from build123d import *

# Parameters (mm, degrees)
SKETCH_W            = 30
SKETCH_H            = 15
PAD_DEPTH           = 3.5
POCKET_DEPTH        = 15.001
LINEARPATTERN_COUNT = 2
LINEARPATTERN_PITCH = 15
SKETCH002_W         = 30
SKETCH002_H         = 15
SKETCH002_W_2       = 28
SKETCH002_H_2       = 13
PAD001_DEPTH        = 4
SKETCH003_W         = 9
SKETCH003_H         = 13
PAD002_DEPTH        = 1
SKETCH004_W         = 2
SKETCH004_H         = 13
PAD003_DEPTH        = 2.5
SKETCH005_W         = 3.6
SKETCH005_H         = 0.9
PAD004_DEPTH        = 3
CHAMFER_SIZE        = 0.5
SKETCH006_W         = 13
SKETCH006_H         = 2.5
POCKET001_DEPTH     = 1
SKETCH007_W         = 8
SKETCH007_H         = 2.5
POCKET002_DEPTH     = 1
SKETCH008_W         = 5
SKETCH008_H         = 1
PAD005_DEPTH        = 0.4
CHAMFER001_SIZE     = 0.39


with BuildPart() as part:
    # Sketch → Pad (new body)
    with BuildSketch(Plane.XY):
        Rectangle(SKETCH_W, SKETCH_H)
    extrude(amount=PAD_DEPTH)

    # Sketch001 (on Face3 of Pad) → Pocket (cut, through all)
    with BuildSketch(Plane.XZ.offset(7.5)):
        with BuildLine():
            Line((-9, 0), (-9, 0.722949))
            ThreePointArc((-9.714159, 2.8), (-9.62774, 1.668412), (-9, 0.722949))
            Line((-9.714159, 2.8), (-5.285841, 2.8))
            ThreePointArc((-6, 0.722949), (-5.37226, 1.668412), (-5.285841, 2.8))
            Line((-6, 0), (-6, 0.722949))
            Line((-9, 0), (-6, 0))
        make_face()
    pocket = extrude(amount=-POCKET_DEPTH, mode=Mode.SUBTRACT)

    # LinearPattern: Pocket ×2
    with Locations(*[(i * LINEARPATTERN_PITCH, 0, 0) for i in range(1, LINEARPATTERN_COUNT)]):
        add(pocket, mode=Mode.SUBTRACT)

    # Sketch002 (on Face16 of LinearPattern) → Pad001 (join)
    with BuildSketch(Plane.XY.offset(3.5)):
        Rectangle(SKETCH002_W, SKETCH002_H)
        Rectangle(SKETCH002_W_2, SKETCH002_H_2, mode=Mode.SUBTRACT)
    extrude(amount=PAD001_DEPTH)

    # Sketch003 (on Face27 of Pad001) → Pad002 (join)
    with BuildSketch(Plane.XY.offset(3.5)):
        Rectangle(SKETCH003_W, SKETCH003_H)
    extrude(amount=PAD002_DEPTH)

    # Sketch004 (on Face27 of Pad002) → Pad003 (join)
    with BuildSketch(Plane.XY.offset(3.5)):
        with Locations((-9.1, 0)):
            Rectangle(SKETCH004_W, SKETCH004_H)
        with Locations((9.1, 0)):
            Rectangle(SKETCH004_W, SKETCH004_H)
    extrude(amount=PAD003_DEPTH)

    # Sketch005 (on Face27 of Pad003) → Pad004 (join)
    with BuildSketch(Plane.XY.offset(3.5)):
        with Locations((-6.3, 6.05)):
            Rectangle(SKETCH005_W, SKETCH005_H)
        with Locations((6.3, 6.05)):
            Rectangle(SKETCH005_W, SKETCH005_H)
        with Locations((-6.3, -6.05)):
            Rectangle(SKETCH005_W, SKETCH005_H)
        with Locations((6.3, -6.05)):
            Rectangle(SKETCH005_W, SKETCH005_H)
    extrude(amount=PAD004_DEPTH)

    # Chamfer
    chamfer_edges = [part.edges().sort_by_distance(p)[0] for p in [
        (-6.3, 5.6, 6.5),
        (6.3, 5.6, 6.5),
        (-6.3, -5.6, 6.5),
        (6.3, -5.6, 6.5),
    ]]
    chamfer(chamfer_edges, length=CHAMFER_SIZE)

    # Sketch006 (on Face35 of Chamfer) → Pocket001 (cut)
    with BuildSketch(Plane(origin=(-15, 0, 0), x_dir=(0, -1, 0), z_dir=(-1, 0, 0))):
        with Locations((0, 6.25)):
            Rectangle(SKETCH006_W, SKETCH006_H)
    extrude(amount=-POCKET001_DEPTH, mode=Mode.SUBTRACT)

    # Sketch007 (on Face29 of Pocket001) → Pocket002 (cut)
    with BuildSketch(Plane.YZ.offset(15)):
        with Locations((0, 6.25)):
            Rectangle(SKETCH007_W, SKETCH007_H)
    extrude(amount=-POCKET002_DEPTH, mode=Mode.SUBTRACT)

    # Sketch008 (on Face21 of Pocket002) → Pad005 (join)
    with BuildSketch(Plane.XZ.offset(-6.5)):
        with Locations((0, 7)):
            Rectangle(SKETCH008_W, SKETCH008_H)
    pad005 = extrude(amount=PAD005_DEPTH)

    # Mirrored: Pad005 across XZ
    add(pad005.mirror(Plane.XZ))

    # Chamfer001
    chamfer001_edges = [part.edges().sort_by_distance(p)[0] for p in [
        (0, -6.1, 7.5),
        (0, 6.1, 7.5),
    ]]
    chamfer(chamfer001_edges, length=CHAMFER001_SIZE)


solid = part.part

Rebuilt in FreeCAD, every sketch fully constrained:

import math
import FreeCAD as App
import Part
import Sketcher
from FreeCAD import Vector


def edges_at(feature, points):
    """Names of the edges that pass closest to the given points."""
    edges = feature.Shape.Edges
    near = lambda p: min(range(len(edges)), key=lambda i: edges[i].distToShape(Part.Vertex(*p))[0])
    return sorted({f"Edge{near(p) + 1}" for p in points})

doc = App.newDocument("Part")
body = doc.addObject("PartDesign::Body", "Body")

# Sketch on XY plane
sketch1 = doc.addObject("Sketcher::SketchObject", "Sketch")
body.addObject(sketch1)
sketch1.AttachmentSupport = (doc.XY_Plane, [""])
sketch1.MapMode = "FlatFace"
sketch1.addGeometry(Part.LineSegment(Vector(-15, 8, 0), Vector(-15, -8, 0)), False)
sketch1.addGeometry(Part.LineSegment(Vector(-15, -8, 0), Vector(15, -8, 0)), False)
sketch1.addGeometry(Part.LineSegment(Vector(15, -8, 0), Vector(15, 8, 0)), False)
sketch1.addGeometry(Part.LineSegment(Vector(15, 8, 0), Vector(-15, 8, 0)), False)
sketch1.addConstraint(Sketcher.Constraint("Coincident", 0, 2, 1, 1))
sketch1.addConstraint(Sketcher.Constraint("Coincident", 1, 2, 2, 1))
sketch1.addConstraint(Sketcher.Constraint("Coincident", 2, 2, 3, 1))
sketch1.addConstraint(Sketcher.Constraint("Coincident", 3, 2, 0, 1))
sketch1.addConstraint(Sketcher.Constraint("Vertical", 0))
sketch1.addConstraint(Sketcher.Constraint("Horizontal", 1))
sketch1.addConstraint(Sketcher.Constraint("Vertical", 2))
sketch1.addConstraint(Sketcher.Constraint("Horizontal", 3))
sketch1.addConstraint(Sketcher.Constraint("Symmetric", 0, 2, 2, 2, -1, 1))
sketch1.addConstraint(Sketcher.Constraint("DistanceX", 1, 1, 1, 2, 30.0))
sketch1.addConstraint(Sketcher.Constraint("DistanceY", 0, 2, 0, 1, 15.0))
pad1 = doc.addObject("PartDesign::Pad", "Pad")
body.addObject(pad1)
pad1.Profile = sketch1
pad1.Length = 3.5

# Sketch on XZ plane
sketch2 = doc.addObject("Sketcher::SketchObject", "Sketch001")
body.addObject(sketch2)
sketch2.AttachmentSupport = (doc.XZ_Plane, [""])
sketch2.MapMode = "FlatFace"
sketch2.AttachmentOffset = App.Placement(Vector(0, 0, 7.5), App.Rotation())
sketch2.addGeometry(Part.LineSegment(Vector(-9, 0.7, 0), Vector(-9, 0, 0)), False)
sketch2.addGeometry(Part.LineSegment(Vector(-9, 0, 0), Vector(-6, 0, 0)), False)
sketch2.addGeometry(Part.LineSegment(Vector(-6, 0, 0), Vector(-6, 0.7, 0)), False)
sketch2.addGeometry(Part.ArcOfCircle(Part.Circle(Vector(-7.5, 2.4, 0), Vector(0, 0, 1), 2.3), math.radians(-48), math.radians(10)), False)
sketch2.addGeometry(Part.LineSegment(Vector(-5.3, 2.8, 0), Vector(-9.7, 2.8, 0)), False)
sketch2.addGeometry(Part.ArcOfCircle(Part.Circle(Vector(-7.5, 2.4, 0), Vector(0, 0, 1), 2.3), math.radians(170), math.radians(228)), False)
sketch2.addConstraint(Sketcher.Constraint("Coincident", 0, 2, 1, 1))
sketch2.addConstraint(Sketcher.Constraint("Coincident", 1, 2, 2, 1))
sketch2.addConstraint(Sketcher.Constraint("Coincident", 2, 2, 3, 1))
sketch2.addConstraint(Sketcher.Constraint("Coincident", 3, 2, 4, 1))
sketch2.addConstraint(Sketcher.Constraint("Coincident", 4, 2, 5, 1))
sketch2.addConstraint(Sketcher.Constraint("Coincident", 5, 2, 0, 1))
sketch2.addConstraint(Sketcher.Constraint("Vertical", 0))
sketch2.addConstraint(Sketcher.Constraint("Horizontal", 1))
sketch2.addConstraint(Sketcher.Constraint("Vertical", 2))
sketch2.addConstraint(Sketcher.Constraint("Horizontal", 4))
sketch2.addConstraint(Sketcher.Constraint("Coincident", 5, 3, 3, 3))
sketch2.addConstraint(Sketcher.Constraint("Equal", 3, 5))
sketch2.addConstraint(Sketcher.Constraint("PointOnObject", 0, 2, -1))
sketch2.addConstraint(Sketcher.Constraint("Horizontal", 2, 2, 5, 2))
sketch2.addConstraint(Sketcher.Constraint("DistanceX", 1, 1, 1, 2, 3.0))
sketch2.addConstraint(Sketcher.Constraint("DistanceX", 0, 2, -1, 1, 9.0))
sketch2.addConstraint(Sketcher.Constraint("DistanceY", -1, 1, 3, 3, 2.400001))
sketch2.addConstraint(Sketcher.Constraint("DistanceY", -1, 1, 3, 2, 2.8))
sketch2.addConstraint(Sketcher.Constraint("Radius", 3, 2.250002))
pocket1 = doc.addObject("PartDesign::Pocket", "Pocket")
body.addObject(pocket1)
pocket1.Profile = sketch2
pocket1.Type = "ThroughAll"
doc.recompute()

linearpattern = doc.addObject("PartDesign::LinearPattern", "LinearPattern")
body.addObject(linearpattern)
linearpattern.Originals = [pocket1]
linearpattern.Direction = (doc.X_Axis, [""])
linearpattern.Mode = "offset"
linearpattern.Offset = 15
linearpattern.Occurrences = 2
body.Tip = linearpattern

# Sketch on XY plane
sketch3 = doc.addObject("Sketcher::SketchObject", "Sketch002")
body.addObject(sketch3)
sketch3.AttachmentSupport = (doc.XY_Plane, [""])
sketch3.MapMode = "FlatFace"
sketch3.AttachmentOffset = App.Placement(Vector(0, 0, 3.5), App.Rotation())
sketch3.addGeometry(Part.LineSegment(Vector(-15, 8, 0), Vector(-15, -8, 0)), False)
sketch3.addGeometry(Part.LineSegment(Vector(-15, -8, 0), Vector(15, -8, 0)), False)
sketch3.addGeometry(Part.LineSegment(Vector(15, -8, 0), Vector(15, 8, 0)), False)
sketch3.addGeometry(Part.LineSegment(Vector(15, 8, 0), Vector(-15, 8, 0)), False)
sketch3.addGeometry(Part.LineSegment(Vector(14, -6, 0), Vector(-14, -6, 0)), False)
sketch3.addGeometry(Part.LineSegment(Vector(-14, -6, 0), Vector(-14, 6, 0)), False)
sketch3.addGeometry(Part.LineSegment(Vector(-14, 6, 0), Vector(14, 6, 0)), False)
sketch3.addGeometry(Part.LineSegment(Vector(14, 6, 0), Vector(14, -6, 0)), False)
sketch3.addConstraint(Sketcher.Constraint("Coincident", 0, 2, 1, 1))
sketch3.addConstraint(Sketcher.Constraint("Coincident", 1, 2, 2, 1))
sketch3.addConstraint(Sketcher.Constraint("Coincident", 2, 2, 3, 1))
sketch3.addConstraint(Sketcher.Constraint("Coincident", 3, 2, 0, 1))
sketch3.addConstraint(Sketcher.Constraint("Coincident", 4, 2, 5, 1))
sketch3.addConstraint(Sketcher.Constraint("Coincident", 5, 2, 6, 1))
sketch3.addConstraint(Sketcher.Constraint("Coincident", 6, 2, 7, 1))
sketch3.addConstraint(Sketcher.Constraint("Coincident", 7, 2, 4, 1))
sketch3.addConstraint(Sketcher.Constraint("Vertical", 0))
sketch3.addConstraint(Sketcher.Constraint("Horizontal", 1))
sketch3.addConstraint(Sketcher.Constraint("Vertical", 2))
sketch3.addConstraint(Sketcher.Constraint("Horizontal", 3))
sketch3.addConstraint(Sketcher.Constraint("Horizontal", 4))
sketch3.addConstraint(Sketcher.Constraint("Vertical", 5))
sketch3.addConstraint(Sketcher.Constraint("Horizontal", 6))
sketch3.addConstraint(Sketcher.Constraint("Vertical", 7))
sketch3.addConstraint(Sketcher.Constraint("Symmetric", 0, 2, 2, 2, -1, 1))
sketch3.addConstraint(Sketcher.Constraint("Symmetric", 4, 2, 6, 2, -1, 1))
sketch3.addConstraint(Sketcher.Constraint("DistanceX", 1, 1, 1, 2, 30.0))
sketch3.addConstraint(Sketcher.Constraint("DistanceX", 4, 2, 4, 1, 28.0))
sketch3.addConstraint(Sketcher.Constraint("DistanceY", 0, 2, 0, 1, 15.0))
sketch3.addConstraint(Sketcher.Constraint("DistanceY", 5, 1, 5, 2, 13.0))
pad2 = doc.addObject("PartDesign::Pad", "Pad001")
body.addObject(pad2)
pad2.Profile = sketch3
pad2.Length = 4

# Sketch on XY plane
sketch4 = doc.addObject("Sketcher::SketchObject", "Sketch003")
body.addObject(sketch4)
sketch4.AttachmentSupport = (doc.XY_Plane, [""])
sketch4.MapMode = "FlatFace"
sketch4.AttachmentOffset = App.Placement(Vector(0, 0, 3.5), App.Rotation())
sketch4.addGeometry(Part.LineSegment(Vector(-4, 6, 0), Vector(-4, -6, 0)), False)
sketch4.addGeometry(Part.LineSegment(Vector(-4, -6, 0), Vector(4, -6, 0)), False)
sketch4.addGeometry(Part.LineSegment(Vector(4, -6, 0), Vector(4, 6, 0)), False)
sketch4.addGeometry(Part.LineSegment(Vector(4, 6, 0), Vector(-4, 6, 0)), False)
sketch4.addConstraint(Sketcher.Constraint("Coincident", 0, 2, 1, 1))
sketch4.addConstraint(Sketcher.Constraint("Coincident", 1, 2, 2, 1))
sketch4.addConstraint(Sketcher.Constraint("Coincident", 2, 2, 3, 1))
sketch4.addConstraint(Sketcher.Constraint("Coincident", 3, 2, 0, 1))
sketch4.addConstraint(Sketcher.Constraint("Vertical", 0))
sketch4.addConstraint(Sketcher.Constraint("Horizontal", 1))
sketch4.addConstraint(Sketcher.Constraint("Vertical", 2))
sketch4.addConstraint(Sketcher.Constraint("Horizontal", 3))
sketch4.addConstraint(Sketcher.Constraint("Symmetric", 0, 2, 2, 2, -1, 1))
sketch4.addConstraint(Sketcher.Constraint("DistanceX", 1, 1, 1, 2, 9.0))
sketch4.addConstraint(Sketcher.Constraint("DistanceY", 0, 2, 0, 1, 13.0))
pad3 = doc.addObject("PartDesign::Pad", "Pad002")
body.addObject(pad3)
pad3.Profile = sketch4
pad3.Length = 1

# Sketch on XY plane
sketch5 = doc.addObject("Sketcher::SketchObject", "Sketch004")
body.addObject(sketch5)
sketch5.AttachmentSupport = (doc.XY_Plane, [""])
sketch5.MapMode = "FlatFace"
sketch5.AttachmentOffset = App.Placement(Vector(0, 0, 3.5), App.Rotation())
sketch5.addGeometry(Part.LineSegment(Vector(-10.1, 6.5, 0), Vector(-10.1, -6.5, 0)), False)
sketch5.addGeometry(Part.LineSegment(Vector(-10.1, -6.5, 0), Vector(-8.1, -6.5, 0)), False)
sketch5.addGeometry(Part.LineSegment(Vector(-8.1, -6.5, 0), Vector(-8.1, 6.5, 0)), False)
sketch5.addGeometry(Part.LineSegment(Vector(-8.1, 6.5, 0), Vector(-10.1, 6.5, 0)), False)
sketch5.addGeometry(Part.LineSegment(Vector(8.1, 6.5, 0), Vector(8.1, -6.5, 0)), False)
sketch5.addGeometry(Part.LineSegment(Vector(8.1, -6.5, 0), Vector(10.1, -6.5, 0)), False)
sketch5.addGeometry(Part.LineSegment(Vector(10.1, -6.5, 0), Vector(10.1, 6.5, 0)), False)
sketch5.addGeometry(Part.LineSegment(Vector(10.1, 6.5, 0), Vector(8.1, 6.5, 0)), False)
sketch5.addConstraint(Sketcher.Constraint("Coincident", 0, 2, 1, 1))
sketch5.addConstraint(Sketcher.Constraint("Coincident", 1, 2, 2, 1))
sketch5.addConstraint(Sketcher.Constraint("Coincident", 2, 2, 3, 1))
sketch5.addConstraint(Sketcher.Constraint("Coincident", 3, 2, 0, 1))
sketch5.addConstraint(Sketcher.Constraint("Coincident", 4, 2, 5, 1))
sketch5.addConstraint(Sketcher.Constraint("Coincident", 5, 2, 6, 1))
sketch5.addConstraint(Sketcher.Constraint("Coincident", 6, 2, 7, 1))
sketch5.addConstraint(Sketcher.Constraint("Coincident", 7, 2, 4, 1))
sketch5.addConstraint(Sketcher.Constraint("Vertical", 0))
sketch5.addConstraint(Sketcher.Constraint("Horizontal", 1))
sketch5.addConstraint(Sketcher.Constraint("Vertical", 2))
sketch5.addConstraint(Sketcher.Constraint("Horizontal", 3))
sketch5.addConstraint(Sketcher.Constraint("Vertical", 4))
sketch5.addConstraint(Sketcher.Constraint("Horizontal", 5))
sketch5.addConstraint(Sketcher.Constraint("Vertical", 6))
sketch5.addConstraint(Sketcher.Constraint("Horizontal", 7))
sketch5.addConstraint(Sketcher.Constraint("Symmetric", 2, 2, 4, 2, -1, 1))
sketch5.addConstraint(Sketcher.Constraint("Symmetric", 0, 2, 6, 2, -1, 1))
sketch5.addConstraint(Sketcher.Constraint("Horizontal", 1, 2, 4, 2))
sketch5.addConstraint(Sketcher.Constraint("DistanceX", 1, 1, 1, 2, 2.0))
sketch5.addConstraint(Sketcher.Constraint("DistanceY", 0, 2, 0, 1, 13.0))
sketch5.addConstraint(Sketcher.Constraint("DistanceX", 0, 2, -1, 1, 10.1))
pad4 = doc.addObject("PartDesign::Pad", "Pad003")
body.addObject(pad4)
pad4.Profile = sketch5
pad4.Length = 2.5

# Sketch on XY plane
sketch6 = doc.addObject("Sketcher::SketchObject", "Sketch005")
body.addObject(sketch6)
sketch6.AttachmentSupport = (doc.XY_Plane, [""])
sketch6.MapMode = "FlatFace"
sketch6.AttachmentOffset = App.Placement(Vector(0, 0, 3.5), App.Rotation())
sketch6.addGeometry(Part.LineSegment(Vector(-8.1, 6.5, 0), Vector(-8.1, 5.6, 0)), False)
sketch6.addGeometry(Part.LineSegment(Vector(-8.1, 5.6, 0), Vector(-4.5, 5.6, 0)), False)
sketch6.addGeometry(Part.LineSegment(Vector(-4.5, 5.6, 0), Vector(-4.5, 6.5, 0)), False)
sketch6.addGeometry(Part.LineSegment(Vector(-4.5, 6.5, 0), Vector(-8.1, 6.5, 0)), False)
sketch6.addGeometry(Part.LineSegment(Vector(4.5, 6.5, 0), Vector(4.5, 5.6, 0)), False)
sketch6.addGeometry(Part.LineSegment(Vector(4.5, 5.6, 0), Vector(8.1, 5.6, 0)), False)
sketch6.addGeometry(Part.LineSegment(Vector(8.1, 5.6, 0), Vector(8.1, 6.5, 0)), False)
sketch6.addGeometry(Part.LineSegment(Vector(8.1, 6.5, 0), Vector(4.5, 6.5, 0)), False)
sketch6.addGeometry(Part.LineSegment(Vector(-8.1, -5.6, 0), Vector(-8.1, -6.5, 0)), False)
sketch6.addGeometry(Part.LineSegment(Vector(-8.1, -6.5, 0), Vector(-4.5, -6.5, 0)), False)
sketch6.addGeometry(Part.LineSegment(Vector(-4.5, -6.5, 0), Vector(-4.5, -5.6, 0)), False)
sketch6.addGeometry(Part.LineSegment(Vector(-4.5, -5.6, 0), Vector(-8.1, -5.6, 0)), False)
sketch6.addGeometry(Part.LineSegment(Vector(4.5, -5.6, 0), Vector(4.5, -6.5, 0)), False)
sketch6.addGeometry(Part.LineSegment(Vector(4.5, -6.5, 0), Vector(8.1, -6.5, 0)), False)
sketch6.addGeometry(Part.LineSegment(Vector(8.1, -6.5, 0), Vector(8.1, -5.6, 0)), False)
sketch6.addGeometry(Part.LineSegment(Vector(8.1, -5.6, 0), Vector(4.5, -5.6, 0)), False)
sketch6.addConstraint(Sketcher.Constraint("Coincident", 0, 2, 1, 1))
sketch6.addConstraint(Sketcher.Constraint("Coincident", 1, 2, 2, 1))
sketch6.addConstraint(Sketcher.Constraint("Coincident", 2, 2, 3, 1))
sketch6.addConstraint(Sketcher.Constraint("Coincident", 3, 2, 0, 1))
sketch6.addConstraint(Sketcher.Constraint("Coincident", 4, 2, 5, 1))
sketch6.addConstraint(Sketcher.Constraint("Coincident", 5, 2, 6, 1))
sketch6.addConstraint(Sketcher.Constraint("Coincident", 6, 2, 7, 1))
sketch6.addConstraint(Sketcher.Constraint("Coincident", 7, 2, 4, 1))
sketch6.addConstraint(Sketcher.Constraint("Coincident", 8, 2, 9, 1))
sketch6.addConstraint(Sketcher.Constraint("Coincident", 9, 2, 10, 1))
sketch6.addConstraint(Sketcher.Constraint("Coincident", 10, 2, 11, 1))
sketch6.addConstraint(Sketcher.Constraint("Coincident", 11, 2, 8, 1))
sketch6.addConstraint(Sketcher.Constraint("Coincident", 12, 2, 13, 1))
sketch6.addConstraint(Sketcher.Constraint("Coincident", 13, 2, 14, 1))
sketch6.addConstraint(Sketcher.Constraint("Coincident", 14, 2, 15, 1))
sketch6.addConstraint(Sketcher.Constraint("Coincident", 15, 2, 12, 1))
sketch6.addConstraint(Sketcher.Constraint("Vertical", 0))
sketch6.addConstraint(Sketcher.Constraint("Horizontal", 1))
sketch6.addConstraint(Sketcher.Constraint("Vertical", 2))
sketch6.addConstraint(Sketcher.Constraint("Horizontal", 3))
sketch6.addConstraint(Sketcher.Constraint("Vertical", 4))
sketch6.addConstraint(Sketcher.Constraint("Horizontal", 5))
sketch6.addConstraint(Sketcher.Constraint("Vertical", 6))
sketch6.addConstraint(Sketcher.Constraint("Horizontal", 7))
sketch6.addConstraint(Sketcher.Constraint("Vertical", 8))
sketch6.addConstraint(Sketcher.Constraint("Horizontal", 9))
sketch6.addConstraint(Sketcher.Constraint("Vertical", 10))
sketch6.addConstraint(Sketcher.Constraint("Horizontal", 11))
sketch6.addConstraint(Sketcher.Constraint("Vertical", 12))
sketch6.addConstraint(Sketcher.Constraint("Horizontal", 13))
sketch6.addConstraint(Sketcher.Constraint("Vertical", 14))
sketch6.addConstraint(Sketcher.Constraint("Horizontal", 15))
sketch6.addConstraint(Sketcher.Constraint("Symmetric", 6, 2, 8, 2, -1, 1))
sketch6.addConstraint(Sketcher.Constraint("Symmetric", 4, 2, 10, 2, -1, 1))
sketch6.addConstraint(Sketcher.Constraint("Symmetric", 2, 2, 12, 2, -1, 1))
sketch6.addConstraint(Sketcher.Constraint("Symmetric", 0, 2, 14, 2, -1, 1))
sketch6.addConstraint(Sketcher.Constraint("Symmetric", 1, 2, 4, 2, -2))
sketch6.addConstraint(Sketcher.Constraint("Symmetric", 3, 2, 6, 2, -2))
sketch6.addConstraint(Sketcher.Constraint("DistanceX", 1, 1, 1, 2, 3.6))
sketch6.addConstraint(Sketcher.Constraint("DistanceY", 0, 2, 0, 1, 0.9))
sketch6.addConstraint(Sketcher.Constraint("DistanceX", 1, 2, 4, 2, 9.0))
sketch6.addConstraint(Sketcher.Constraint("DistanceY", 8, 2, 3, 2, 13.0))
pad5 = doc.addObject("PartDesign::Pad", "Pad004")
body.addObject(pad5)
pad5.Profile = sketch6
pad5.Length = 3
doc.recompute()

chamfer = doc.addObject("PartDesign::Chamfer", "Chamfer")
body.addObject(chamfer)
chamfer.Base = (pad5, edges_at(pad5, [
    (-6.3, 5.6, 6.5),
    (6.3, 5.6, 6.5),
    (-6.3, -5.6, 6.5),
    (6.3, -5.6, 6.5),
]))
chamfer.Size = 0.5

# Sketch on YZ plane
sketch7 = doc.addObject("Sketcher::SketchObject", "Sketch006")
body.addObject(sketch7)
sketch7.AttachmentSupport = (doc.YZ_Plane, [""])
sketch7.MapMode = "FlatFace"
sketch7.AttachmentOffset = App.Placement(Vector(0, 0, -15), App.Rotation())
sketch7.addGeometry(Part.LineSegment(Vector(6.5, 7.5, 0), Vector(6.5, 5, 0)), False)
sketch7.addGeometry(Part.LineSegment(Vector(6.5, 5, 0), Vector(-6.5, 5, 0)), False)
sketch7.addGeometry(Part.LineSegment(Vector(-6.5, 5, 0), Vector(-6.5, 7.5, 0)), False)
sketch7.addGeometry(Part.LineSegment(Vector(-6.5, 7.5, 0), Vector(6.5, 7.5, 0)), False)
sketch7.addConstraint(Sketcher.Constraint("Coincident", 0, 2, 1, 1))
sketch7.addConstraint(Sketcher.Constraint("Coincident", 1, 2, 2, 1))
sketch7.addConstraint(Sketcher.Constraint("Coincident", 2, 2, 3, 1))
sketch7.addConstraint(Sketcher.Constraint("Coincident", 3, 2, 0, 1))
sketch7.addConstraint(Sketcher.Constraint("Vertical", 0))
sketch7.addConstraint(Sketcher.Constraint("Horizontal", 1))
sketch7.addConstraint(Sketcher.Constraint("Vertical", 2))
sketch7.addConstraint(Sketcher.Constraint("Horizontal", 3))
sketch7.addConstraint(Sketcher.Constraint("DistanceX", 1, 2, 1, 1, 13.0))
sketch7.addConstraint(Sketcher.Constraint("DistanceY", 0, 2, 0, 1, 2.5))
sketch7.addConstraint(Sketcher.Constraint("DistanceY", -1, 1, 0, 2, 5.0))
sketch7.addConstraint(Sketcher.Constraint("DistanceX", -1, 1, 0, 2, 6.5))
pocket2 = doc.addObject("PartDesign::Pocket", "Pocket001")
body.addObject(pocket2)
pocket2.Profile = sketch7
pocket2.Length = 1
pocket2.Reversed = True

# Sketch on YZ plane
sketch8 = doc.addObject("Sketcher::SketchObject", "Sketch007")
body.addObject(sketch8)
sketch8.AttachmentSupport = (doc.YZ_Plane, [""])
sketch8.MapMode = "FlatFace"
sketch8.AttachmentOffset = App.Placement(Vector(0, 0, 15), App.Rotation())
sketch8.addGeometry(Part.LineSegment(Vector(-4, 7.5, 0), Vector(-4, 5, 0)), False)
sketch8.addGeometry(Part.LineSegment(Vector(-4, 5, 0), Vector(4, 5, 0)), False)
sketch8.addGeometry(Part.LineSegment(Vector(4, 5, 0), Vector(4, 7.5, 0)), False)
sketch8.addGeometry(Part.LineSegment(Vector(4, 7.5, 0), Vector(-4, 7.5, 0)), False)
sketch8.addConstraint(Sketcher.Constraint("Coincident", 0, 2, 1, 1))
sketch8.addConstraint(Sketcher.Constraint("Coincident", 1, 2, 2, 1))
sketch8.addConstraint(Sketcher.Constraint("Coincident", 2, 2, 3, 1))
sketch8.addConstraint(Sketcher.Constraint("Coincident", 3, 2, 0, 1))
sketch8.addConstraint(Sketcher.Constraint("Vertical", 0))
sketch8.addConstraint(Sketcher.Constraint("Horizontal", 1))
sketch8.addConstraint(Sketcher.Constraint("Vertical", 2))
sketch8.addConstraint(Sketcher.Constraint("Horizontal", 3))
sketch8.addConstraint(Sketcher.Constraint("DistanceX", 1, 1, 1, 2, 8.0))
sketch8.addConstraint(Sketcher.Constraint("DistanceY", 0, 2, 0, 1, 2.5))
sketch8.addConstraint(Sketcher.Constraint("DistanceX", 0, 2, -1, 1, 4.0))
sketch8.addConstraint(Sketcher.Constraint("DistanceY", -1, 1, 0, 2, 5.0))
pocket3 = doc.addObject("PartDesign::Pocket", "Pocket002")
body.addObject(pocket3)
pocket3.Profile = sketch8
pocket3.Length = 1

# Sketch on XZ plane
sketch9 = doc.addObject("Sketcher::SketchObject", "Sketch008")
body.addObject(sketch9)
sketch9.AttachmentSupport = (doc.XZ_Plane, [""])
sketch9.MapMode = "FlatFace"
sketch9.AttachmentOffset = App.Placement(Vector(0, 0, -6.5), App.Rotation())
sketch9.addGeometry(Part.LineSegment(Vector(-2.5, 7.5, 0), Vector(-2.5, 6.5, 0)), False)
sketch9.addGeometry(Part.LineSegment(Vector(-2.5, 6.5, 0), Vector(2.5, 6.5, 0)), False)
sketch9.addGeometry(Part.LineSegment(Vector(2.5, 6.5, 0), Vector(2.5, 7.5, 0)), False)
sketch9.addGeometry(Part.LineSegment(Vector(2.5, 7.5, 0), Vector(-2.5, 7.5, 0)), False)
sketch9.addConstraint(Sketcher.Constraint("Coincident", 0, 2, 1, 1))
sketch9.addConstraint(Sketcher.Constraint("Coincident", 1, 2, 2, 1))
sketch9.addConstraint(Sketcher.Constraint("Coincident", 2, 2, 3, 1))
sketch9.addConstraint(Sketcher.Constraint("Coincident", 3, 2, 0, 1))
sketch9.addConstraint(Sketcher.Constraint("Vertical", 0))
sketch9.addConstraint(Sketcher.Constraint("Horizontal", 1))
sketch9.addConstraint(Sketcher.Constraint("Vertical", 2))
sketch9.addConstraint(Sketcher.Constraint("Horizontal", 3))
sketch9.addConstraint(Sketcher.Constraint("DistanceX", 1, 1, 1, 2, 5.0))
sketch9.addConstraint(Sketcher.Constraint("DistanceY", 0, 2, 0, 1, 1.0))
sketch9.addConstraint(Sketcher.Constraint("DistanceX", 0, 2, -1, 1, 2.5))
sketch9.addConstraint(Sketcher.Constraint("DistanceY", -1, 1, 0, 2, 6.5))
pad6 = doc.addObject("PartDesign::Pad", "Pad005")
body.addObject(pad6)
pad6.Profile = sketch9
pad6.Length = 0.4
doc.recompute()

mirrored = doc.addObject("PartDesign::Mirrored", "Mirrored")
body.addObject(mirrored)
mirrored.Originals = [pad6]
mirrored.MirrorPlane = (doc.XZ_Plane, [""])
body.Tip = mirrored
doc.recompute()

chamfer2 = doc.addObject("PartDesign::Chamfer", "Chamfer001")
body.addObject(chamfer2)
chamfer2.Base = (mirrored, edges_at(mirrored, [(0, -6.1, 7.5), (0, 6.1, 7.5)]))
chamfer2.Size = 0.39

doc.recompute()
